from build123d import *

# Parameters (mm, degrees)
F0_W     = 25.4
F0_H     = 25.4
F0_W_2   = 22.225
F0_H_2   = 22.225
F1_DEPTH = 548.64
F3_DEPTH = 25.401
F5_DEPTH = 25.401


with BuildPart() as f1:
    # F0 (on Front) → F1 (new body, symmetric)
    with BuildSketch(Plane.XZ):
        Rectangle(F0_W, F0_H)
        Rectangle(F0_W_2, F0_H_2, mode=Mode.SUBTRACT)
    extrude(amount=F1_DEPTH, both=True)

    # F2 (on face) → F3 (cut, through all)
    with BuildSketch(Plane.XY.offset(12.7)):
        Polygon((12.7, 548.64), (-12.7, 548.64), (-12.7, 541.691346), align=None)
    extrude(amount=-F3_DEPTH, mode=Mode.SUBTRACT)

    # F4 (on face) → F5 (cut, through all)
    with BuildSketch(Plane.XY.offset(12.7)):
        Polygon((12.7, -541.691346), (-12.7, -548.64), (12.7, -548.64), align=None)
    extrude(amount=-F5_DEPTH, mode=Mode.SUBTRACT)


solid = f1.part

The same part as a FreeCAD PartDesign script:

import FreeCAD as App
import Part
import Sketcher
from FreeCAD import Vector
Q = App.Units.Quantity

doc = App.newDocument("Part")
body = doc.addObject("PartDesign::Body", "Body")

# Sketch on XZ plane
sketch1 = doc.addObject("Sketcher::SketchObject", "Sketch")
body.addObject(sketch1)
sketch1.AttachmentSupport = (doc.XZ_Plane, [""])
sketch1.MapMode = "FlatFace"
sketch1.addGeometry(Part.LineSegment(Vector(-13, 13, 0), Vector(-13, -13, 0)), False)
sketch1.addGeometry(Part.LineSegment(Vector(-13, -13, 0), Vector(13, -13, 0)), False)
sketch1.addGeometry(Part.LineSegment(Vector(13, -13, 0), Vector(13, 13, 0)), False)
sketch1.addGeometry(Part.LineSegment(Vector(13, 13, 0), Vector(-13, 13, 0)), False)
sketch1.addGeometry(Part.LineSegment(Vector(11, -11, 0), Vector(-11, -11, 0)), False)
sketch1.addGeometry(Part.LineSegment(Vector(-11, -11, 0), Vector(-11, 11, 0)), False)
sketch1.addGeometry(Part.LineSegment(Vector(-11, 11, 0), Vector(11, 11, 0)), False)
sketch1.addGeometry(Part.LineSegment(Vector(11, 11, 0), Vector(11, -11, 0)), False)
sketch1.addConstraint(Sketcher.Constraint("Coincident", 0, 2, 1, 1))
sketch1.addConstraint(Sketcher.Constraint("Coincident", 1, 2, 2, 1))
sketch1.addConstraint(Sketcher.Constraint("Coincident", 2, 2, 3, 1))
sketch1.addConstraint(Sketcher.Constraint("Coincident", 3, 2, 0, 1))
sketch1.addConstraint(Sketcher.Constraint("Coincident", 4, 2, 5, 1))
sketch1.addConstraint(Sketcher.Constraint("Coincident", 5, 2, 6, 1))
sketch1.addConstraint(Sketcher.Constraint("Coincident", 6, 2, 7, 1))
sketch1.addConstraint(Sketcher.Constraint("Coincident", 7, 2, 4, 1))
sketch1.addConstraint(Sketcher.Constraint("Vertical", 0))
sketch1.addConstraint(Sketcher.Constraint("Horizontal", 1))
sketch1.addConstraint(Sketcher.Constraint("Vertical", 2))
sketch1.addConstraint(Sketcher.Constraint("Horizontal", 3))
sketch1.addConstraint(Sketcher.Constraint("Horizontal", 4))
sketch1.addConstraint(Sketcher.Constraint("Vertical", 5))
sketch1.addConstraint(Sketcher.Constraint("Horizontal", 6))
sketch1.addConstraint(Sketcher.Constraint("Vertical", 7))
sketch1.addConstraint(Sketcher.Constraint("Symmetric", 0, 2, 2, 2, -1, 1))
sketch1.addConstraint(Sketcher.Constraint("Symmetric", 4, 2, 6, 2, -1, 1))
sketch1.addConstraint(Sketcher.Constraint("Equal", 3, 0))
sketch1.addConstraint(Sketcher.Constraint("Equal", 6, 5))
sketch1.addConstraint(Sketcher.Constraint("DistanceX", 1, 1, 1, 2, Q("1 in")))
sketch1.addConstraint(Sketcher.Constraint("DistanceX", 4, 2, 4, 1, Q("0.875 in")))
pad1 = doc.addObject("PartDesign::Pad", "Pad")
body.addObject(pad1)
pad1.Profile = sketch1
pad1.Length = Q("43.2 in")
pad1.Midplane = True

# Sketch on XY plane
sketch2 = doc.addObject("Sketcher::SketchObject", "Sketch001")
body.addObject(sketch2)
sketch2.AttachmentSupport = (doc.XY_Plane, [""])
sketch2.MapMode = "FlatFace"
sketch2.AttachmentOffset = App.Placement(Vector(0, 0, 0.5 * 25.4), App.Rotation())
sketch2.addGeometry(Part.LineSegment(Vector(13, 549, 0), Vector(-13, 549, 0)), False)
sketch2.addGeometry(Part.LineSegment(Vector(-13, 549, 0), Vector(-13, 542, 0)), False)
sketch2.addGeometry(Part.LineSegment(Vector(-13, 542, 0), Vector(13, 549, 0)), False)
sketch2.addConstraint(Sketcher.Constraint("Coincident", 0, 2, 1, 1))
sketch2.addConstraint(Sketcher.Constraint("Coincident", 1, 2, 2, 1))
sketch2.addConstraint(Sketcher.Constraint("Coincident", 2, 2, 0, 1))
sketch2.addConstraint(Sketcher.Constraint("Horizontal", 0))
sketch2.addConstraint(Sketcher.Constraint("Vertical", 1))
sketch2.addConstraint(Sketcher.Constraint("DistanceX", 0, 2, 0, 1, Q("1 in")))
sketch2.addConstraint(Sketcher.Constraint("DistanceX", 0, 2, -1, 1, Q("0.5 in")))
sketch2.addConstraint(Sketcher.Constraint("DistanceY", -1, 1, 0, 2, Q("21.6 in")))
sketch2.addConstraint(Sketcher.Constraint("Angle", 2, Q("15.300001 deg")))
pocket1 = doc.addObject("PartDesign::Pocket", "Pocket")
body.addObject(pocket1)
pocket1.Profile = sketch2
pocket1.Type = "ThroughAll"

# Sketch on XY plane
sketch3 = doc.addObject("Sketcher::SketchObject", "Sketch002")
body.addObject(sketch3)
sketch3.AttachmentSupport = (doc.XY_Plane, [""])
sketch3.MapMode = "FlatFace"
sketch3.AttachmentOffset = App.Placement(Vector(0, 0, 0.5 * 25.4), App.Rotation())
sketch3.addGeometry(Part.LineSegment(Vector(13, -542, 0), Vector(-13, -549, 0)), False)
sketch3.addGeometry(Part.LineSegment(Vector(-13, -549, 0), Vector(13, -549, 0)), False)
sketch3.addGeometry(Part.LineSegment(Vector(13, -549, 0), Vector(13, -542, 0)), False)
sketch3.addConstraint(Sketcher.Constraint("Coincident", 0, 2, 1, 1))
sketch3.addConstraint(Sketcher.Constraint("Coincident", 1, 2, 2, 1))
sketch3.addConstraint(Sketcher.Constraint("Coincident", 2, 2, 0, 1))
sketch3.addConstraint(Sketcher.Constraint("Horizontal", 1))
sketch3.addConstraint(Sketcher.Constraint("Vertical", 2))
sketch3.addConstraint(Sketcher.Constraint("DistanceX", 1, 1, 1, 2, Q("1 in")))
sketch3.addConstraint(Sketcher.Constraint("DistanceX", 0, 2, -1, 1, Q("0.5 in")))
sketch3.addConstraint(Sketcher.Constraint("DistanceY", 0, 2, -1, 1, Q("21.6 in")))
sketch3.addConstraint(Sketcher.Constraint("Angle", 0, Q("-164.699999 deg")))
pocket2 = doc.addObject("PartDesign::Pocket", "Pocket001")
body.addObject(pocket2)
pocket2.Profile = sketch3
pocket2.Type = "ThroughAll"

doc.recompute()
